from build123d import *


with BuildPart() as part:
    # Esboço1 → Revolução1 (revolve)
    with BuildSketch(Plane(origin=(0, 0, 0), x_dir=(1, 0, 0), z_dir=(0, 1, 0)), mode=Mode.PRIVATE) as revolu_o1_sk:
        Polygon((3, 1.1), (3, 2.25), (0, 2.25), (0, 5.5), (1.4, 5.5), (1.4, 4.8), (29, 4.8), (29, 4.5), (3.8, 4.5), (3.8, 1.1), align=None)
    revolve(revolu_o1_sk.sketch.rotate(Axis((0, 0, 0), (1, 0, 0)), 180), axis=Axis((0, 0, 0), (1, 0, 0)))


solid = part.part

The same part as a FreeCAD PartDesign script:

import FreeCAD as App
import Part
import Sketcher

doc = App.newDocument("Part")
body = doc.addObject("PartDesign::Body", "Body")

sketch1 = body.newObject("Sketcher::SketchObject", "Sketch")
sketch1.AttachmentSupport = (doc.getObject("XZ_Plane"), [""])
sketch1.MapMode = "FlatFace"
sketch1.addGeometry([
    Part.LineSegment(App.Vector(3, -2.25, 0), App.Vector(3, -1.1, 0)),
    Part.LineSegment(App.Vector(3, -1.1, 0), App.Vector(3.8, -1.1, 0)),
    Part.LineSegment(App.Vector(3.8, -1.1, 0), App.Vector(3.8, -4.5, 0)),
    Part.LineSegment(App.Vector(3.8, -4.5, 0), App.Vector(29, -4.5, 0)),
    Part.LineSegment(App.Vector(29, -4.5, 0), App.Vector(29, -4.8, 0)),
    Part.LineSegment(App.Vector(29, -4.8, 0), App.Vector(1.4, -4.8, 0)),
    Part.LineSegment(App.Vector(1.4, -4.8, 0), App.Vector(1.4, -5.5, 0)),
    Part.LineSegment(App.Vector(1.4, -5.5, 0), App.Vector(0, -5.5, 0)),
    Part.LineSegment(App.Vector(0, -5.5, 0), App.Vector(0, -2.25, 0)),
    Part.LineSegment(App.Vector(0, -2.25, 0), App.Vector(3, -2.25, 0)),
], False)
sketch1.addConstraint([
    Sketcher.Constraint("Coincident", 0, 2, 1, 1),
    Sketcher.Constraint("Coincident", 1, 2, 2, 1),
    Sketcher.Constraint("Coincident", 2, 2, 3, 1),
    Sketcher.Constraint("Coincident", 3, 2, 4, 1),
    Sketcher.Constraint("Coincident", 4, 2, 5, 1),
    Sketcher.Constraint("Coincident", 5, 2, 6, 1),
    Sketcher.Constraint("Coincident", 6, 2, 7, 1),
    Sketcher.Constraint("Coincident", 7, 2, 8, 1),
    Sketcher.Constraint("Coincident", 8, 2, 9, 1),
    Sketcher.Constraint("Coincident", 9, 2, 0, 1),
    Sketcher.Constraint("Vertical", 0),
    Sketcher.Constraint("Horizontal", 1),
    Sketcher.Constraint("Vertical", 2),
    Sketcher.Constraint("Horizontal", 3),
    Sketcher.Constraint("Vertical", 4),
    Sketcher.Constraint("Horizontal", 5),
    Sketcher.Constraint("Vertical", 6),
    Sketcher.Constraint("Horizontal", 7),
    Sketcher.Constraint("Vertical", 8),
    Sketcher.Constraint("Horizontal", 9),
    Sketcher.Constraint("PointOnObject", 7, 2, -2),
    Sketcher.Constraint("DistanceX", 9, 1, 9, 2, 3.0),
    Sketcher.Constraint("DistanceX", 1, 1, 1, 2, 0.8),
    Sketcher.Constraint("DistanceX", 3, 1, 3, 2, 25.2),
    Sketcher.Constraint("DistanceX", 5, 2, 5, 1, 27.6),
    Sketcher.Constraint("DistanceY", 2, 2, 2, 1, 3.4),
    Sketcher.Constraint("DistanceY", 4, 2, 4, 1, 0.3),
    Sketcher.Constraint("DistanceY", 6, 2, 6, 1, 0.7),
    Sketcher.Constraint("DistanceY", 0, 1, 0, 2, 1.15),
    Sketcher.Constraint("DistanceY", 0, 2, -1, 1, 1.1),
])
revolution = body.newObject("PartDesign::Revolution", "Revolution")
revolution.Profile = sketch1
revolution.ReferenceAxis = (sketch1, ["H_Axis"])
revolution.Angle = 360

doc.recompute()
